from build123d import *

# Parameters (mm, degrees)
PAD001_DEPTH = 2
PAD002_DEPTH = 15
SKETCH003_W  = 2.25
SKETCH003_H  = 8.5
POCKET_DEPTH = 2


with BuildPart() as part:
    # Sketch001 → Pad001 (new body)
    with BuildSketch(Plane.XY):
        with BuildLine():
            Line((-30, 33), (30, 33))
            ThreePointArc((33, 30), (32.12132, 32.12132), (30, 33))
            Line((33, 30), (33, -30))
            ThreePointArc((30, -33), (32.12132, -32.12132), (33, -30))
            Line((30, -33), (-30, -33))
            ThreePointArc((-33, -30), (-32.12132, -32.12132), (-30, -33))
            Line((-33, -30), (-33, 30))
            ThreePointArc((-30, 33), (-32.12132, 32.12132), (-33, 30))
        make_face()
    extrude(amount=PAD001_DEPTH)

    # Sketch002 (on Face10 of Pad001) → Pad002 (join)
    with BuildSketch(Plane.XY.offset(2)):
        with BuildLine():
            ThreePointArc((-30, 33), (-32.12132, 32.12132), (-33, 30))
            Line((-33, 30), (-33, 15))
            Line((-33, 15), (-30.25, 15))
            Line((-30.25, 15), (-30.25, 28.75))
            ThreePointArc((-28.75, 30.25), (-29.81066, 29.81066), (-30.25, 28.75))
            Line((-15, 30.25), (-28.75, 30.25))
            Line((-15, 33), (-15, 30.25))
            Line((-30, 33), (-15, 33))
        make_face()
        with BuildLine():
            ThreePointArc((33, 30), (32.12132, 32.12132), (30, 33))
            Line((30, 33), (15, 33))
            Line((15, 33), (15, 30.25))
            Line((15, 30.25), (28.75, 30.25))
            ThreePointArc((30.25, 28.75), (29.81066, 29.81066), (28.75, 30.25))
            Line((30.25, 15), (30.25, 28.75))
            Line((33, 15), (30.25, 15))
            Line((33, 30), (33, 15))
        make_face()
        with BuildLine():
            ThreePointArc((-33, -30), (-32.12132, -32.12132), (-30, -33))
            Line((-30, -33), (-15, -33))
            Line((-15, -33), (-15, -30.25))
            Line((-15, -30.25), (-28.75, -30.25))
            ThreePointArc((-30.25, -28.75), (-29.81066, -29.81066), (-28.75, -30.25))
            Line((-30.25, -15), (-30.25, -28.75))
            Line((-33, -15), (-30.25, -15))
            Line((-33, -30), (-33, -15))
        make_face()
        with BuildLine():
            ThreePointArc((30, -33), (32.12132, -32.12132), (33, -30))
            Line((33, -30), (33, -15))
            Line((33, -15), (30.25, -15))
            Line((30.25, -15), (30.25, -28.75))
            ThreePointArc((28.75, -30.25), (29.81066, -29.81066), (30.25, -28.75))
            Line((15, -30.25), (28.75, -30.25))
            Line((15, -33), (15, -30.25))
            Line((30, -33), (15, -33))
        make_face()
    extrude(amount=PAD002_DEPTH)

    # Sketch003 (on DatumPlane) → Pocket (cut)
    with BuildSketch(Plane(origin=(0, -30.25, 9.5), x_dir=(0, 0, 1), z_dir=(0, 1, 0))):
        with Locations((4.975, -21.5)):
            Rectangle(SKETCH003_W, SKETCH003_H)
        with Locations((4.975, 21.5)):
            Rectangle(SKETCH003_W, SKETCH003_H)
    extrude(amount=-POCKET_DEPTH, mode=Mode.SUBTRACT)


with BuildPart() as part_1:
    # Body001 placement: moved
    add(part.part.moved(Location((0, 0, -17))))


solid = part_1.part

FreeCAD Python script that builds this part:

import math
import FreeCAD as App
import Part
import Sketcher
from FreeCAD import Vector


def add_polygon(sketch, points):
    """Adds a closed chain of lines whose ends are joined by coincident constraints."""
    first, n = sketch.GeometryCount, len(points)
    for a, b in zip(points, points[1:] + points[:1]):
        sketch.addGeometry(Part.LineSegment(App.Vector(*a, 0), App.Vector(*b, 0)), False)
    for i in range(n):
        sketch.addConstraint(Sketcher.Constraint("Coincident", first + i, 2, first + (i + 1) % n, 1))

doc = App.newDocument("Part")
body = doc.addObject("PartDesign::Body", "Body")

# Sketch on XY plane
sketch1 = body.newObject("Sketcher::SketchObject", "Sketch")
sketch1.AttachmentSupport = (doc.getObject("XY_Plane"), [""])
sketch1.MapMode = "FlatFace"
sketch1.addGeometry([
    Part.LineSegment(Vector(30, 33, 0), Vector(-30, 33, 0)),  # 0
    Part.ArcOfCircle(Part.Circle(Vector(-29.999999, 29.999999, 0), Vector(0, 0, 1), 3.000001), math.radians(90.000022), math.radians(179.999978)),  # 1
    Part.LineSegment(Vector(-33, 30, 0), Vector(-33, -30, 0)),  # 2
    Part.ArcOfCircle(Part.Circle(Vector(-29.999999, -29.999999, 0), Vector(0, 0, 1), 3.000001), math.radians(-179.999978), math.radians(-90.000022)),  # 3
    Part.LineSegment(Vector(-30, -33, 0), Vector(30, -33, 0)),  # 4
    Part.ArcOfCircle(Part.Circle(Vector(29.999999, -29.999999, 0), Vector(0, 0, 1), 3.000001), math.radians(-89.999978), math.radians(-0.000022)),  # 5
    Part.LineSegment(Vector(33, -30, 0), Vector(33, 30, 0)),  # 6
    Part.ArcOfCircle(Part.Circle(Vector(29.999999, 29.999999, 0), Vector(0, 0, 1), 3.000001), math.radians(0.000022), math.radians(89.999978)),  # 7
], False)
sketch1.addConstraint([
    Sketcher.Constraint("Tangent", 0, 2, 1, 1),
    Sketcher.Constraint("Tangent", 1, 2, 2, 1),
    Sketcher.Constraint("Tangent", 2, 2, 3, 1),
    Sketcher.Constraint("Tangent", 3, 2, 4, 1),
    Sketcher.Constraint("Tangent", 4, 2, 5, 1),
    Sketcher.Constraint("Tangent", 5, 2, 6, 1),
    Sketcher.Constraint("Tangent", 6, 2, 7, 1),
    Sketcher.Constraint("Tangent", 7, 2, 0, 1),
    Sketcher.Constraint("Horizontal", 0),
    Sketcher.Constraint("Vertical", 2),
    Sketcher.Constraint("Horizontal", 4),
    Sketcher.Constraint("Vertical", 6),
    Sketcher.Constraint("Equal", 1, 3),
    Sketcher.Constraint("Equal", 3, 5),
    Sketcher.Constraint("Equal", 5, 7),
    Sketcher.Constraint("Symmetric", 1, 3, 5, 3, -1, 1),
    Sketcher.Constraint("Equal", 4, 2),
    Sketcher.Constraint("Radius", 1, 3.000001),
    Sketcher.Constraint("DistanceX", 0, 2, 0, 1, 60.0),
])
pad1 = body.newObject("PartDesign::Pad", "Pad")
pad1.Profile = sketch1
pad1.Length = 2

# Sketch on XY plane
sketch2 = body.newObject("Sketcher::SketchObject", "Sketch001")
sketch2.AttachmentSupport = (doc.getObject("XY_Plane"), [""])
sketch2.MapMode = "FlatFace"
sketch2.AttachmentOffset = App.Placement(Vector(0, 0, 2), App.Rotation())
sketch2.addGeometry([
    Part.ArcOfCircle(Part.Circle(Vector(-29.999999, 29.999999, 0), Vector(0, 0, 1), 3.000001), math.radians(90.000022), math.radians(179.999978)),  # 0
    Part.LineSegment(Vector(-33, 30, 0), Vector(-33, 15, 0)),  # 1
    Part.LineSegment(Vector(-33, 15, 0), Vector(-30.25, 15, 0)),  # 2
    Part.LineSegment(Vector(-30.25, 15, 0), Vector(-30.25, 28.75, 0)),  # 3
    Part.ArcOfCircle(Part.Circle(Vector(-28.749999, 28.749999, 0), Vector(0, 0, 1), 1.500001), math.radians(90.000022), math.radians(179.999978)),  # 4
    Part.LineSegment(Vector(-28.75, 30.25, 0), Vector(-15, 30.25, 0)),  # 5
    Part.LineSegment(Vector(-15, 30.25, 0), Vector(-15, 33, 0)),  # 6
    Part.LineSegment(Vector(-15, 33, 0), Vector(-30, 33, 0)),  # 7
    Part.ArcOfCircle(Part.Circle(Vector(29.999999, 29.999999, 0), Vector(0, 0, 1), 3.000001), math.radians(0.000022), math.radians(89.999978)),  # 8
    Part.LineSegment(Vector(30, 33, 0), Vector(15, 33, 0)),  # 9
    Part.LineSegment(Vector(15, 33, 0), Vector(15, 30.25, 0)),  # 10
    Part.LineSegment(Vector(15, 30.25, 0), Vector(28.75, 30.25, 0)),  # 11
    Part.ArcOfCircle(Part.Circle(Vector(28.749999, 28.749999, 0), Vector(0, 0, 1), 1.500001), math.radians(0.000022), math.radians(89.999978)),  # 12
    Part.LineSegment(Vector(30.25, 28.75, 0), Vector(30.25, 15, 0)),  # 13
    Part.LineSegment(Vector(30.25, 15, 0), Vector(33, 15, 0)),  # 14
    Part.LineSegment(Vector(33, 15, 0), Vector(33, 30, 0)),  # 15
    Part.ArcOfCircle(Part.Circle(Vector(-29.999999, -29.999999, 0), Vector(0, 0, 1), 3.000001), math.radians(-179.999978), math.radians(-90.000022)),  # 16
    Part.LineSegment(Vector(-30, -33, 0), Vector(-15, -33, 0)),  # 17
    Part.LineSegment(Vector(-15, -33, 0), Vector(-15, -30.25, 0)),  # 18
    Part.LineSegment(Vector(-15, -30.25, 0), Vector(-28.75, -30.25, 0)),  # 19
    Part.ArcOfCircle(Part.Circle(Vector(-28.749999, -28.749999, 0), Vector(0, 0, 1), 1.500001), math.radians(-179.999978), math.radians(-90.000022)),  # 20
    Part.LineSegment(Vector(-30.25, -28.75, 0), Vector(-30.25, -15, 0)),  # 21
    Part.LineSegment(Vector(-30.25, -15, 0), Vector(-33, -15, 0)),  # 22
    Part.LineSegment(Vector(-33, -15, 0), Vector(-33, -30, 0)),  # 23
    Part.ArcOfCircle(Part.Circle(Vector(29.999999, -29.999999, 0), Vector(0, 0, 1), 3.000001), math.radians(-89.999978), math.radians(-0.000022)),  # 24
    Part.LineSegment(Vector(33, -30, 0), Vector(33, -15, 0)),  # 25
    Part.LineSegment(Vector(33, -15, 0), Vector(30.25, -15, 0)),  # 26
    Part.LineSegment(Vector(30.25, -15, 0), Vector(30.25, -28.75, 0)),  # 27
    Part.ArcOfCircle(Part.Circle(Vector(28.749999, -28.749999, 0), Vector(0, 0, 1), 1.500001), math.radians(-89.999978), math.radians(-0.000022)),  # 28
    Part.LineSegment(Vector(28.75, -30.25, 0), Vector(15, -30.25, 0)),  # 29
    Part.LineSegment(Vector(15, -30.25, 0), Vector(15, -33, 0)),  # 30
    Part.LineSegment(Vector(15, -33, 0), Vector(30, -33, 0)),  # 31
], False)
sketch2.addConstraint([
    Sketcher.Constraint("Tangent", 0, 2, 1, 1),
    Sketcher.Constraint("Coincident", 1, 2, 2, 1),
    Sketcher.Constraint("Coincident", 2, 2, 3, 1),
    Sketcher.Constraint("Tangent", 3, 2, 4, 2),
    Sketcher.Constraint("Tangent", 4, 1, 5, 1),
    Sketcher.Constraint("Coincident", 5, 2, 6, 1),
    Sketcher.Constraint("Coincident", 6, 2, 7, 1),
    Sketcher.Constraint("Tangent", 7, 2, 0, 1),
    Sketcher.Constraint("Tangent", 8, 2, 9, 1),
    Sketcher.Constraint("Coincident", 9, 2, 10, 1),
    Sketcher.Constraint("Coincident", 10, 2, 11, 1),
    Sketcher.Constraint("Tangent", 11, 2, 12, 2),
    Sketcher.Constraint("Tangent", 12, 1, 13, 1),
    Sketcher.Constraint("Coincident", 13, 2, 14, 1),
    Sketcher.Constraint("Coincident", 14, 2, 15, 1),
    Sketcher.Constraint("Tangent", 15, 2, 8, 1),
    Sketcher.Constraint("Tangent", 16, 2, 17, 1),
    Sketcher.Constraint("Coincident", 17, 2, 18, 1),
    Sketcher.Constraint("Coincident", 18, 2, 19, 1),
    Sketcher.Constraint("Tangent", 19, 2, 20, 2),
    Sketcher.Constraint("Tangent", 20, 1, 21, 1),
    Sketcher.Constraint("Coincident", 21, 2, 22, 1),
    Sketcher.Constraint("Coincident", 22, 2, 23, 1),
    Sketcher.Constraint("Tangent", 23, 2, 16, 1),
    Sketcher.Constraint("Tangent", 24, 2, 25, 1),
    Sketcher.Constraint("Coincident", 25, 2, 26, 1),
    Sketcher.Constraint("Coincident", 26, 2, 27, 1),
    Sketcher.Constraint("Tangent", 27, 2, 28, 2),
    Sketcher.Constraint("Tangent", 28, 1, 29, 1),
    Sketcher.Constraint("Coincident", 29, 2, 30, 1),
    Sketcher.Constraint("Coincident", 30, 2, 31, 1),
    Sketcher.Constraint("Tangent", 31, 2, 24, 1),
    Sketcher.Constraint("Vertical", 1),
    Sketcher.Constraint("Horizontal", 2),
    Sketcher.Constraint("Vertical", 3),
    Sketcher.Constraint("Horizontal", 5),
    Sketcher.Constraint("Vertical", 6),
    Sketcher.Constraint("Horizontal", 7),
    Sketcher.Constraint("Horizontal", 9),
    Sketcher.Constraint("Vertical", 10),
    Sketcher.Constraint("Horizontal", 11),
    Sketcher.Constraint("Vertical", 13),
    Sketcher.Constraint("Horizontal", 14),
    Sketcher.Constraint("Vertical", 15),
    Sketcher.Constraint("Horizontal", 17),
    Sketcher.Constraint("Vertical", 18),
    Sketcher.Constraint("Horizontal", 19),
    Sketcher.Constraint("Vertical", 21),
    Sketcher.Constraint("Horizontal", 22),
    Sketcher.Constraint("Vertical", 23),
    Sketcher.Constraint("Vertical", 25),
    Sketcher.Constraint("Horizontal", 26),
    Sketcher.Constraint("Vertical", 27),
    Sketcher.Constraint("Horizontal", 29),
    Sketcher.Constraint("Vertical", 30),
    Sketcher.Constraint("Horizontal", 31),
    Sketcher.Constraint("Equal", 0, 8),
    Sketcher.Constraint("Equal", 4, 12),
    Sketcher.Constraint("Equal", 8, 16),
    Sketcher.Constraint("Equal", 12, 20),
    Sketcher.Constraint("Equal", 16, 24),
    Sketcher.Constraint("Equal", 20, 28),
    Sketcher.Constraint("Symmetric", 8, 3, 16, 3, -1, 1),
    Sketcher.Constraint("Symmetric", 12, 3, 20, 3, -1, 1),
    Sketcher.Constraint("Symmetric", 0, 3, 24, 3, -1, 1),
    Sketcher.Constraint("Symmetric", 4, 3, 28, 3, -1, 1),
    Sketcher.Constraint("Symmetric", 0, 3, 8, 3, -2),
    Sketcher.Constraint("Symmetric", 4, 3, 12, 3, -2),
    Sketcher.Constraint("Horizontal", 2, 2, 13, 2),
    Sketcher.Constraint("Horizontal", 22, 2, 25, 2),
    Sketcher.Constraint("Vertical", 6, 2, 17, 2),
    Sketcher.Constraint("Vertical", 10, 2, 29, 2),
    Sketcher.Constraint("Equal", 7, 9),
    Sketcher.Constraint("Equal", 31, 1),
    Sketcher.Constraint("Equal", 29, 3),
    Sketcher.Constraint("Equal", 13, 21),
    Sketcher.Constraint("Radius", 0, 3.000001),
    Sketcher.Constraint("Radius", 4, 1.500001),
    Sketcher.Constraint("DistanceX", 7, 2, 7, 1, 15.0),
    Sketcher.Constraint("DistanceX", 0, 3, -1, 1, 29.999999),
    Sketcher.Constraint("DistanceY", -1, 1, 0, 3, 29.999999),
    Sketcher.Constraint("DistanceX", 2, 1, 2, 2, 2.75),
])
pad2 = body.newObject("PartDesign::Pad", "Pad001")
pad2.Profile = sketch2
pad2.Length = 15

# Sketch on XZ plane
sketch3 = body.newObject("Sketcher::SketchObject", "Sketch002")
sketch3.AttachmentSupport = (doc.getObject("XZ_Plane"), [""])
sketch3.MapMode = "FlatFace"
sketch3.AttachmentOffset = App.Placement(Vector(0, 0, 30.25), App.Rotation())
add_polygon(sketch3, [(-17.25, 13.35), (-25.75, 13.35), (-25.75, 15.6), (-17.25, 15.6)])  # lines 0-3
add_polygon(sketch3, [(25.75, 13.35), (17.25, 13.35), (17.25, 15.6), (25.75, 15.6)])  # lines 4-7
sketch3.addConstraint([
    Sketcher.Constraint("Horizontal", 0),
    Sketcher.Constraint("Vertical", 1),
    Sketcher.Constraint("Horizontal", 2),
    Sketcher.Constraint("Vertical", 3),
    Sketcher.Constraint("Horizontal", 4),
    Sketcher.Constraint("Vertical", 5),
    Sketcher.Constraint("Horizontal", 6),
    Sketcher.Constraint("Vertical", 7),
    Sketcher.Constraint("Symmetric", 3, 2, 4, 2, -2),
    Sketcher.Constraint("Symmetric", 1, 2, 6, 2, -2),
    Sketcher.Constraint("DistanceX", 0, 2, 0, 1, 8.5),
    Sketcher.Constraint("DistanceX", 0, 2, 4, 2, 43.0),
    Sketcher.Constraint("DistanceY", 1, 1, 1, 2, 2.25),
    Sketcher.Constraint("DistanceY", -1, 1, 1, 2, 15.6),
])
pocket1 = body.newObject("PartDesign::Pocket", "Pocket")
pocket1.Profile = sketch3
pocket1.Length = 2
pocket1.Reversed = True
body2 = doc.addObject("PartDesign::Body", "Body001")
doc.recompute()

body.Placement = App.Placement(Vector(0, 0, -17), App.Rotation(Vector(0, 0, 1), 0))
boolean = body2.newObject("PartDesign::Boolean", "Boolean")
boolean.Type = "Fuse"
boolean.addObjects([body])

doc.recompute()
